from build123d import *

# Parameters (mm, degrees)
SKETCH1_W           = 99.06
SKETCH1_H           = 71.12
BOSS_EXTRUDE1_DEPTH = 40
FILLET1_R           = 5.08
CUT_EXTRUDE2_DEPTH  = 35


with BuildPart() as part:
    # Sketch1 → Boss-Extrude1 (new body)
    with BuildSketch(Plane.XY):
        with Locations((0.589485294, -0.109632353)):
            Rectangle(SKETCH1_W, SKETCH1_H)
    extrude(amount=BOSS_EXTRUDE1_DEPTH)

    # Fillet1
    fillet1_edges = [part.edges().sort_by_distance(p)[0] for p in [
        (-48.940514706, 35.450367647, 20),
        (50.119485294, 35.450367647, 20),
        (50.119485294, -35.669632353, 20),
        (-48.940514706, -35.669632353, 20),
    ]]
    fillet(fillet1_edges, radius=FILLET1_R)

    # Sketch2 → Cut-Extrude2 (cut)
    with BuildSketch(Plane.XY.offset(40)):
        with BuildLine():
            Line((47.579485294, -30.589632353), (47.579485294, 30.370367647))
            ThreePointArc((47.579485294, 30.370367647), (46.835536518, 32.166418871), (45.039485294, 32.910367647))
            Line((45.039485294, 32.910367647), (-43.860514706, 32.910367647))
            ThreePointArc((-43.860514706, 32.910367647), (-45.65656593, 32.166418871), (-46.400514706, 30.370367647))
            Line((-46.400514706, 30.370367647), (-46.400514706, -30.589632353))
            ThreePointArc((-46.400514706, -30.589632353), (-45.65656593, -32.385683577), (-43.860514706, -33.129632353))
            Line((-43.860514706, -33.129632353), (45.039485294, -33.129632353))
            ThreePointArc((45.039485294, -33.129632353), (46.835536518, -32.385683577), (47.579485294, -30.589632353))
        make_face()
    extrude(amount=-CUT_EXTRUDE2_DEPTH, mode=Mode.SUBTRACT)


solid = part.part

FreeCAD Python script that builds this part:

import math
import FreeCAD as App
import Part
import Sketcher

V = App.Vector
Q = App.Units.Quantity


def edges_at(feature, points):
    """Names of the edges that pass closest to the given points."""
    edges = feature.Shape.Edges
    near = lambda p: min(range(len(edges)), key=lambda i: edges[i].distToShape(Part.Vertex(*p))[0])
    return sorted({f"Edge{near(p) + 1}" for p in points})


def add_polygon(sketch, points):
    """Adds a closed chain of lines whose ends are joined by coincident constraints."""
    first, n = sketch.GeometryCount, len(points)
    for a, b in zip(points, points[1:] + points[:1]):
        sketch.addGeometry(Part.LineSegment(App.Vector(*a, 0), App.Vector(*b, 0)), False)
    for i in range(n):
        sketch.addConstraint(Sketcher.Constraint("Coincident", first + i, 2, first + (i + 1) % n, 1))

doc = App.newDocument("Part")
body = doc.addObject("PartDesign::Body", "Body")

# Sketch on XY plane
sketch1 = body.newObject("Sketcher::SketchObject", "Sketch")
sketch1.AttachmentSupport = (doc.getObject("XY_Plane"), [""])
sketch1.MapMode = "FlatFace"
add_polygon(sketch1, [(-49, 35), (-49, -36), (50, -36), (50, 35)])  # lines 0-3
sketch1.addConstraint([
    Sketcher.Constraint("Vertical", 0),
    Sketcher.Constraint("Horizontal", 1),
    Sketcher.Constraint("Vertical", 2),
    Sketcher.Constraint("Horizontal", 3),
    Sketcher.Constraint("DistanceX", 1, 1, 1, 2, Q("3.9 in")),
    Sketcher.Constraint("DistanceY", 0, 2, 0, 1, Q("2.8 in")),
    Sketcher.Constraint("DistanceX", 0, 2, -1, 1, 48.940515),
    Sketcher.Constraint("DistanceY", 0, 2, -1, 1, 35.669632),
])
pad1 = body.newObject("PartDesign::Pad", "Pad")
pad1.Profile = sketch1
pad1.Length = 40
doc.recompute()

fillet = body.newObject("PartDesign::Fillet", "Fillet")
fillet.Base = (pad1, edges_at(pad1, [
    (-48.941, 35.45, 20),
    (50.119, 35.45, 20),
    (50.119, -35.67, 20),
    (-48.941, -35.67, 20),
]))
fillet.Radius = Q("0.2 in")

# Sketch on XY plane
sketch2 = body.newObject("Sketcher::SketchObject", "Sketch001")
sketch2.AttachmentSupport = (doc.getObject("XY_Plane"), [""])
sketch2.MapMode = "FlatFace"
sketch2.AttachmentOffset = App.Placement(V(0, 0, 40), App.Rotation())
sketch2.addGeometry([
    Part.LineSegment(V(47.6, -30.6, 0), V(47.6, 30.4, 0)),  # 0
    Part.ArcOfCircle(Part.Circle(V(45, 30.4, 0), V(0, 0, 1), 2.5), math.radians(0), math.radians(90)),  # 1
    Part.LineSegment(V(45, 32.9, 0), V(-43.9, 32.9, 0)),  # 2
    Part.ArcOfCircle(Part.Circle(V(-43.9, 30.4, 0), V(0, 0, 1), 2.5), math.radians(90), math.radians(180)),  # 3
    Part.LineSegment(V(-46.4, 30.4, 0), V(-46.4, -30.6, 0)),  # 4
    Part.ArcOfCircle(Part.Circle(V(-43.9, -30.6, 0), V(0, 0, 1), 2.5), math.radians(-180), math.radians(-90)),  # 5
    Part.LineSegment(V(-43.9, -33.1, 0), V(45, -33.1, 0)),  # 6
    Part.ArcOfCircle(Part.Circle(V(45, -30.6, 0), V(0, 0, 1), 2.5), math.radians(-90), math.radians(0)),  # 7
], False)
sketch2.addConstraint([
    Sketcher.Constraint("Tangent", 0, 2, 1, 1),
    Sketcher.Constraint("Tangent", 1, 2, 2, 1),
    Sketcher.Constraint("Tangent", 2, 2, 3, 1),
    Sketcher.Constraint("Tangent", 3, 2, 4, 1),
    Sketcher.Constraint("Tangent", 4, 2, 5, 1),
    Sketcher.Constraint("Tangent", 5, 2, 6, 1),
    Sketcher.Constraint("Tangent", 6, 2, 7, 1),
    Sketcher.Constraint("Tangent", 7, 2, 0, 1),
    Sketcher.Constraint("Vertical", 0),
    Sketcher.Constraint("Horizontal", 2),
    Sketcher.Constraint("Vertical", 4),
    Sketcher.Constraint("Horizontal", 6),
    Sketcher.Constraint("Equal", 1, 3),
    Sketcher.Constraint("Equal", 3, 5),
    Sketcher.Constraint("Equal", 5, 7),
    Sketcher.Constraint("Radius", 1, Q("0.1 in")),
    Sketcher.Constraint("DistanceX", 2, 2, 2, 1, Q("3.5 in")),
    Sketcher.Constraint("DistanceY", 0, 1, 0, 2, Q("2.4 in")),
    Sketcher.Constraint("DistanceX", -1, 1, 1, 3, 45.039485),
    Sketcher.Constraint("DistanceY", -1, 1, 1, 3, 30.370368),
])
pocket1 = body.newObject("PartDesign::Pocket", "Pocket")
pocket1.Profile = sketch2
pocket1.Length = 35

doc.recompute()
